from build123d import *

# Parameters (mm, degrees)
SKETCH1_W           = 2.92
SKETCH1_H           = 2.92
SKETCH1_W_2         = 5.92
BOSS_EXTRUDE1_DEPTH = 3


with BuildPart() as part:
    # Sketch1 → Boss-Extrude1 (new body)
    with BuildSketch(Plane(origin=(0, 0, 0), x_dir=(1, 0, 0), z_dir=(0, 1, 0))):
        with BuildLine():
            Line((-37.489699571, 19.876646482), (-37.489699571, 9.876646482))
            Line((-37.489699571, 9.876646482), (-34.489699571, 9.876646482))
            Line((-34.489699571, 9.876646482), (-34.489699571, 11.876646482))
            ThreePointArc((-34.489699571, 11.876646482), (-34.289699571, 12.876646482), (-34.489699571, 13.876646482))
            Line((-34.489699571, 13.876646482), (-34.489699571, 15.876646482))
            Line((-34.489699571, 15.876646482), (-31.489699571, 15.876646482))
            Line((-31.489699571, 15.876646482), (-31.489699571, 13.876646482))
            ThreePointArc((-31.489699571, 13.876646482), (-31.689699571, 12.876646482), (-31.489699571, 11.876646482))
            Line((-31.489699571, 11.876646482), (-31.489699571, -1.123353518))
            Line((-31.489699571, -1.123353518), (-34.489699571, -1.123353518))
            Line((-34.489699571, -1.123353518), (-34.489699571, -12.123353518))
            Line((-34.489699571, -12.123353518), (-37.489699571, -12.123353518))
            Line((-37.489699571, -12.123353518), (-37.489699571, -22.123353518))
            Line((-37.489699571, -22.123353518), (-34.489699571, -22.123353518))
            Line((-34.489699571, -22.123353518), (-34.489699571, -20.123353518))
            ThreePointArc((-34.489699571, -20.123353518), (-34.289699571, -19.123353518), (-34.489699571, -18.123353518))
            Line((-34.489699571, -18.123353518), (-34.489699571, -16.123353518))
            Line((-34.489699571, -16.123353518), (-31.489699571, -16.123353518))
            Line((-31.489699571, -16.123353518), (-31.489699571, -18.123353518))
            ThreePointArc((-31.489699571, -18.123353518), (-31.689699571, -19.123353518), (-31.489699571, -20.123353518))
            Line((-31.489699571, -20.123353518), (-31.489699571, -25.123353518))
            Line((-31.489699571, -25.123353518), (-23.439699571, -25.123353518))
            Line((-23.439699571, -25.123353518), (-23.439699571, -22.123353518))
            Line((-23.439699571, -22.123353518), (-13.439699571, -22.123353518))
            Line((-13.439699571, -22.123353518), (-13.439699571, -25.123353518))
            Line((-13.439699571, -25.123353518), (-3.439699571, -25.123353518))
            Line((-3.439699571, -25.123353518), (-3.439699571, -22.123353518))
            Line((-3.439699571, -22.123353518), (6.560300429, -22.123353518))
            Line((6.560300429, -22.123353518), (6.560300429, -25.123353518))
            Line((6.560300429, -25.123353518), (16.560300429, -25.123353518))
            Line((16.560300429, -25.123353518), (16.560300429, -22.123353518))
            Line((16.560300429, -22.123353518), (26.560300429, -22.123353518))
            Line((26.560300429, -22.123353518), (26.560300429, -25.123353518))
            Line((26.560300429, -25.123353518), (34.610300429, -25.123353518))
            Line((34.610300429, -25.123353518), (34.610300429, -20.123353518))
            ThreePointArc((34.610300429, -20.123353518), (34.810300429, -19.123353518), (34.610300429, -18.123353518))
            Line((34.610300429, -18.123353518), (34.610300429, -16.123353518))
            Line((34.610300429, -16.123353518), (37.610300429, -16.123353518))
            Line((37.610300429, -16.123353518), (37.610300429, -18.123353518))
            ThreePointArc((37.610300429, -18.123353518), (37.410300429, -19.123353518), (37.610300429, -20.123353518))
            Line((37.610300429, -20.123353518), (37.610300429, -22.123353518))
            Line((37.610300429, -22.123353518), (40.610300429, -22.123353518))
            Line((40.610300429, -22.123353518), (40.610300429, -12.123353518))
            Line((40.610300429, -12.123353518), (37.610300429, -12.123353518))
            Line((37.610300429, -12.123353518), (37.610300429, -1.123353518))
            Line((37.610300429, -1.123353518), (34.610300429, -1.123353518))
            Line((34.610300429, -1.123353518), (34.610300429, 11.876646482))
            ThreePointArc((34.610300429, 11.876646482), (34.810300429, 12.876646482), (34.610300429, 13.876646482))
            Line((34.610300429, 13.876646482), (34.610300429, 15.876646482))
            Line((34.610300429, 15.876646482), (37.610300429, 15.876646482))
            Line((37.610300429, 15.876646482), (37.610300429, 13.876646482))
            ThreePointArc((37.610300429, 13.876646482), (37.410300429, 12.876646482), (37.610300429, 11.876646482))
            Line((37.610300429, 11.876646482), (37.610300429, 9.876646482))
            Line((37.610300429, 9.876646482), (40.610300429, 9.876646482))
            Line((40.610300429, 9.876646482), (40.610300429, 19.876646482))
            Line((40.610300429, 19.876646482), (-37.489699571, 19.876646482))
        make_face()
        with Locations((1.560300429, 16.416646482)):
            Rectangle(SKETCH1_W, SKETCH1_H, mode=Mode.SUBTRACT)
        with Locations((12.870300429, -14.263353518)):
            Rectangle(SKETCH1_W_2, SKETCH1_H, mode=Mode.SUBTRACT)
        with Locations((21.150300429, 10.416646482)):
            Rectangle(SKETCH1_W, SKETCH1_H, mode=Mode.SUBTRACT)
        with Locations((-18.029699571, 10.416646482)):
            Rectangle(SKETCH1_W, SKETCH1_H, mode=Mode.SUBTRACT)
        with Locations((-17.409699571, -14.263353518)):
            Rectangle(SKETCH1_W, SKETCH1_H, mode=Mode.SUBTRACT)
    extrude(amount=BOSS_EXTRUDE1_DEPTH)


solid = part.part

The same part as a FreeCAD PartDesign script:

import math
import FreeCAD as App
import Part
import Sketcher

doc = App.newDocument("Part")
body = doc.addObject("PartDesign::Body", "Body")

sketch1 = doc.addObject("Sketcher::SketchObject", "Sketch")
body.addObject(sketch1)
sketch1.AttachmentSupport = (doc.XZ_Plane, [""])
sketch1.MapMode = "FlatFace"
sketch1.addGeometry([
    Part.LineSegment(App.Vector(-37.5, -19.9, 0), App.Vector(-37.5, -9.9, 0)),
    Part.LineSegment(App.Vector(-37.5, -9.9, 0), App.Vector(-34.5, -9.9, 0)),
    Part.LineSegment(App.Vector(-34.5, -9.9, 0), App.Vector(-34.5, -11.9, 0)),
    Part.ArcOfCircle(Part.Circle(App.Vector(-36.9, -12.9, 0), App.Vector(0, 0, 1), 2.6), math.radians(-23), math.radians(23)),
    Part.LineSegment(App.Vector(-34.5, -13.9, 0), App.Vector(-34.5, -15.9, 0)),
    Part.LineSegment(App.Vector(-34.5, -15.9, 0), App.Vector(-31.5, -15.9, 0)),
    Part.LineSegment(App.Vector(-31.5, -15.9, 0), App.Vector(-31.5, -13.9, 0)),
    Part.ArcOfCircle(Part.Circle(App.Vector(-29.1, -12.9, 0), App.Vector(0, 0, 1), 2.6), math.radians(157), math.radians(203)),
    Part.LineSegment(App.Vector(-31.5, -11.9, 0), App.Vector(-31.5, 1.1, 0)),
    Part.LineSegment(App.Vector(-31.5, 1.1, 0), App.Vector(-34.5, 1.1, 0)),
    Part.LineSegment(App.Vector(-34.5, 1.1, 0), App.Vector(-34.5, 12.1, 0)),
    Part.LineSegment(App.Vector(-34.5, 12.1, 0), App.Vector(-37.5, 12.1, 0)),
    Part.LineSegment(App.Vector(-37.5, 12.1, 0), App.Vector(-37.5, 22.1, 0)),
    Part.LineSegment(App.Vector(-37.5, 22.1, 0), App.Vector(-34.5, 22.1, 0)),
    Part.LineSegment(App.Vector(-34.5, 22.1, 0), App.Vector(-34.5, 20.1, 0)),
    Part.ArcOfCircle(Part.Circle(App.Vector(-36.9, 19.1, 0), App.Vector(0, 0, 1), 2.6), math.radians(-23), math.radians(23)),
    Part.LineSegment(App.Vector(-34.5, 18.1, 0), App.Vector(-34.5, 16.1, 0)),
    Part.LineSegment(App.Vector(-34.5, 16.1, 0), App.Vector(-31.5, 16.1, 0)),
    Part.LineSegment(App.Vector(-31.5, 16.1, 0), App.Vector(-31.5, 18.1, 0)),
    Part.ArcOfCircle(Part.Circle(App.Vector(-29.1, 19.1, 0), App.Vector(0, 0, 1), 2.6), math.radians(157), math.radians(203)),
    Part.LineSegment(App.Vector(-31.5, 20.1, 0), App.Vector(-31.5, 25.1, 0)),
    Part.LineSegment(App.Vector(-31.5, 25.1, 0), App.Vector(-23.4, 25.1, 0)),
    Part.LineSegment(App.Vector(-23.4, 25.1, 0), App.Vector(-23.4, 22.1, 0)),
    Part.LineSegment(App.Vector(-23.4, 22.1, 0), App.Vector(-13.4, 22.1, 0)),
    Part.LineSegment(App.Vector(-13.4, 22.1, 0), App.Vector(-13.4, 25.1, 0)),
    Part.LineSegment(App.Vector(-13.4, 25.1, 0), App.Vector(-3.4, 25.1, 0)),
    Part.LineSegment(App.Vector(-3.4, 25.1, 0), App.Vector(-3.4, 22.1, 0)),
    Part.LineSegment(App.Vector(-3.4, 22.1, 0), App.Vector(6.6, 22.1, 0)),
    Part.LineSegment(App.Vector(6.6, 22.1, 0), App.Vector(6.6, 25.1, 0)),
    Part.LineSegment(App.Vector(6.6, 25.1, 0), App.Vector(16.6, 25.1, 0)),
    Part.LineSegment(App.Vector(16.6, 25.1, 0), App.Vector(16.6, 22.1, 0)),
    Part.LineSegment(App.Vector(16.6, 22.1, 0), App.Vector(26.6, 22.1, 0)),
    Part.LineSegment(App.Vector(26.6, 22.1, 0), App.Vector(26.6, 25.1, 0)),
    Part.LineSegment(App.Vector(26.6, 25.1, 0), App.Vector(34.6, 25.1, 0)),
    Part.LineSegment(App.Vector(34.6, 25.1, 0), App.Vector(34.6, 20.1, 0)),
    Part.ArcOfCircle(Part.Circle(App.Vector(32.2, 19.1, 0), App.Vector(0, 0, 1), 2.6), math.radians(-23), math.radians(23)),
    Part.LineSegment(App.Vector(34.6, 18.1, 0), App.Vector(34.6, 16.1, 0)),
    Part.LineSegment(App.Vector(34.6, 16.1, 0), App.Vector(37.6, 16.1, 0)),
    Part.LineSegment(App.Vector(37.6, 16.1, 0), App.Vector(37.6, 18.1, 0)),
    Part.ArcOfCircle(Part.Circle(App.Vector(40, 19.1, 0), App.Vector(0, 0, 1), 2.6), math.radians(157), math.radians(203)),
    Part.LineSegment(App.Vector(37.6, 20.1, 0), App.Vector(37.6, 22.1, 0)),
    Part.LineSegment(App.Vector(37.6, 22.1, 0), App.Vector(40.6, 22.1, 0)),
    Part.LineSegment(App.Vector(40.6, 22.1, 0), App.Vector(40.6, 12.1, 0)),
    Part.LineSegment(App.Vector(40.6, 12.1, 0), App.Vector(37.6, 12.1, 0)),
    Part.LineSegment(App.Vector(37.6, 12.1, 0), App.Vector(37.6, 1.1, 0)),
    Part.LineSegment(App.Vector(37.6, 1.1, 0), App.Vector(34.6, 1.1, 0)),
    Part.LineSegment(App.Vector(34.6, 1.1, 0), App.Vector(34.6, -11.9, 0)),
    Part.ArcOfCircle(Part.Circle(App.Vector(32.2, -12.9, 0), App.Vector(0, 0, 1), 2.6), math.radians(-23), math.radians(23)),
    Part.LineSegment(App.Vector(34.6, -13.9, 0), App.Vector(34.6, -15.9, 0)),
    Part.LineSegment(App.Vector(34.6, -15.9, 0), App.Vector(37.6, -15.9, 0)),
    Part.LineSegment(App.Vector(37.6, -15.9, 0), App.Vector(37.6, -13.9, 0)),
    Part.ArcOfCircle(Part.Circle(App.Vector(40, -12.9, 0), App.Vector(0, 0, 1), 2.6), math.radians(157), math.radians(203)),
    Part.LineSegment(App.Vector(37.6, -11.9, 0), App.Vector(37.6, -9.9, 0)),
    Part.LineSegment(App.Vector(37.6, -9.9, 0), App.Vector(40.6, -9.9, 0)),
    Part.LineSegment(App.Vector(40.6, -9.9, 0), App.Vector(40.6, -19.9, 0)),
    Part.LineSegment(App.Vector(40.6, -19.9, 0), App.Vector(-37.5, -19.9, 0)),
    Part.LineSegment(App.Vector(-15.9, 15.7, 0), App.Vector(-18.9, 15.7, 0)),
    Part.LineSegment(App.Vector(-18.9, 15.7, 0), App.Vector(-18.9, 12.8, 0)),
    Part.LineSegment(App.Vector(-18.9, 12.8, 0), App.Vector(-15.9, 12.8, 0)),
    Part.LineSegment(App.Vector(-15.9, 12.8, 0), App.Vector(-15.9, 15.7, 0)),
    Part.LineSegment(App.Vector(15.8, 15.7, 0), App.Vector(9.9, 15.7, 0)),
    Part.LineSegment(App.Vector(9.9, 15.7, 0), App.Vector(9.9, 12.8, 0)),
    Part.LineSegment(App.Vector(9.9, 12.8, 0), App.Vector(15.8, 12.8, 0)),
    Part.LineSegment(App.Vector(15.8, 12.8, 0), App.Vector(15.8, 15.7, 0)),
    Part.LineSegment(App.Vector(-16.6, -9, 0), App.Vector(-19.5, -9, 0)),
    Part.LineSegment(App.Vector(-19.5, -9, 0), App.Vector(-19.5, -11.9, 0)),
    Part.LineSegment(App.Vector(-19.5, -11.9, 0), App.Vector(-16.6, -11.9, 0)),
    Part.LineSegment(App.Vector(-16.6, -11.9, 0), App.Vector(-16.6, -9, 0)),
    Part.LineSegment(App.Vector(3, -15, 0), App.Vector(0.1, -15, 0)),
    Part.LineSegment(App.Vector(0.1, -15, 0), App.Vector(0.1, -17.9, 0)),
    Part.LineSegment(App.Vector(0.1, -17.9, 0), App.Vector(3, -17.9, 0)),
    Part.LineSegment(App.Vector(3, -17.9, 0), App.Vector(3, -15, 0)),
    Part.LineSegment(App.Vector(22.6, -9, 0), App.Vector(19.7, -9, 0)),
    Part.LineSegment(App.Vector(19.7, -9, 0), App.Vector(19.7, -11.9, 0)),
    Part.LineSegment(App.Vector(19.7, -11.9, 0), App.Vector(22.6, -11.9, 0)),
    Part.LineSegment(App.Vector(22.6, -11.9, 0), App.Vector(22.6, -9, 0)),
], False)
sketch1.addConstraint([
    Sketcher.Constraint("Coincident", 0, 2, 1, 1),
    Sketcher.Constraint("Coincident", 1, 2, 2, 1),
    Sketcher.Constraint("Coincident", 2, 2, 3, 2),
    Sketcher.Constraint("Coincident", 3, 1, 4, 1),
    Sketcher.Constraint("Coincident", 4, 2, 5, 1),
    Sketcher.Constraint("Coincident", 5, 2, 6, 1),
    Sketcher.Constraint("Coincident", 6, 2, 7, 2),
    Sketcher.Constraint("Coincident", 7, 1, 8, 1),
    Sketcher.Constraint("Coincident", 8, 2, 9, 1),
    Sketcher.Constraint("Coincident", 9, 2, 10, 1),
    Sketcher.Constraint("Coincident", 10, 2, 11, 1),
    Sketcher.Constraint("Coincident", 11, 2, 12, 1),
    Sketcher.Constraint("Coincident", 12, 2, 13, 1),
    Sketcher.Constraint("Coincident", 13, 2, 14, 1),
    Sketcher.Constraint("Coincident", 14, 2, 15, 2),
    Sketcher.Constraint("Coincident", 15, 1, 16, 1),
    Sketcher.Constraint("Coincident", 16, 2, 17, 1),
    Sketcher.Constraint("Coincident", 17, 2, 18, 1),
    Sketcher.Constraint("Coincident", 18, 2, 19, 2),
    Sketcher.Constraint("Coincident", 19, 1, 20, 1),
    Sketcher.Constraint("Coincident", 20, 2, 21, 1),
    Sketcher.Constraint("Coincident", 21, 2, 22, 1),
    Sketcher.Constraint("Coincident", 22, 2, 23, 1),
    Sketcher.Constraint("Coincident", 23, 2, 24, 1),
    Sketcher.Constraint("Coincident", 24, 2, 25, 1),
    Sketcher.Constraint("Coincident", 25, 2, 26, 1),
    Sketcher.Constraint("Coincident", 26, 2, 27, 1),
    Sketcher.Constraint("Coincident", 27, 2, 28, 1),
    Sketcher.Constraint("Coincident", 28, 2, 29, 1),
    Sketcher.Constraint("Coincident", 29, 2, 30, 1),
    Sketcher.Constraint("Coincident", 30, 2, 31, 1),
    Sketcher.Constraint("Coincident", 31, 2, 32, 1),
    Sketcher.Constraint("Coincident", 32, 2, 33, 1),
    Sketcher.Constraint("Coincident", 33, 2, 34, 1),
    Sketcher.Constraint("Coincident", 34, 2, 35, 2),
    Sketcher.Constraint("Coincident", 35, 1, 36, 1),
    Sketcher.Constraint("Coincident", 36, 2, 37, 1),
    Sketcher.Constraint("Coincident", 37, 2, 38, 1),
    Sketcher.Constraint("Coincident", 38, 2, 39, 2),
    Sketcher.Constraint("Coincident", 39, 1, 40, 1),
    Sketcher.Constraint("Coincident", 40, 2, 41, 1),
    Sketcher.Constraint("Coincident", 41, 2, 42, 1),
    Sketcher.Constraint("Coincident", 42, 2, 43, 1),
    Sketcher.Constraint("Coincident", 43, 2, 44, 1),
    Sketcher.Constraint("Coincident", 44, 2, 45, 1),
    Sketcher.Constraint("Coincident", 45, 2, 46, 1),
    Sketcher.Constraint("Coincident", 46, 2, 47, 2),
    Sketcher.Constraint("Coincident", 47, 1, 48, 1),
    Sketcher.Constraint("Coincident", 48, 2, 49, 1),
    Sketcher.Constraint("Coincident", 49, 2, 50, 1),
    Sketcher.Constraint("Coincident", 50, 2, 51, 2),
    Sketcher.Constraint("Coincident", 51, 1, 52, 1),
    Sketcher.Constraint("Coincident", 52, 2, 53, 1),
    Sketcher.Constraint("Coincident", 53, 2, 54, 1),
    Sketcher.Constraint("Coincident", 54, 2, 55, 1),
    Sketcher.Constraint("Coincident", 55, 2, 0, 1),
    Sketcher.Constraint("Coincident", 56, 2, 57, 1),
    Sketcher.Constraint("Coincident", 57, 2, 58, 1),
    Sketcher.Constraint("Coincident", 58, 2, 59, 1),
    Sketcher.Constraint("Coincident", 59, 2, 56, 1),
    Sketcher.Constraint("Coincident", 60, 2, 61, 1),
    Sketcher.Constraint("Coincident", 61, 2, 62, 1),
    Sketcher.Constraint("Coincident", 62, 2, 63, 1),
    Sketcher.Constraint("Coincident", 63, 2, 60, 1),
    Sketcher.Constraint("Coincident", 64, 2, 65, 1),
    Sketcher.Constraint("Coincident", 65, 2, 66, 1),
    Sketcher.Constraint("Coincident", 66, 2, 67, 1),
    Sketcher.Constraint("Coincident", 67, 2, 64, 1),
    Sketcher.Constraint("Coincident", 68, 2, 69, 1),
    Sketcher.Constraint("Coincident", 69, 2, 70, 1),
    Sketcher.Constraint("Coincident", 70, 2, 71, 1),
    Sketcher.Constraint("Coincident", 71, 2, 68, 1),
    Sketcher.Constraint("Coincident", 72, 2, 73, 1),
    Sketcher.Constraint("Coincident", 73, 2, 74, 1),
    Sketcher.Constraint("Coincident", 74, 2, 75, 1),
    Sketcher.Constraint("Coincident", 75, 2, 72, 1),
    Sketcher.Constraint("Vertical", 0),
    Sketcher.Constraint("Horizontal", 1),
    Sketcher.Constraint("Vertical", 2),
    Sketcher.Constraint("Vertical", 4),
    Sketcher.Constraint("Horizontal", 5),
    Sketcher.Constraint("Vertical", 6),
    Sketcher.Constraint("Vertical", 8),
    Sketcher.Constraint("Horizontal", 9),
    Sketcher.Constraint("Vertical", 10),
    Sketcher.Constraint("Horizontal", 11),
    Sketcher.Constraint("Vertical", 12),
    Sketcher.Constraint("Horizontal", 13),
    Sketcher.Constraint("Vertical", 14),
    Sketcher.Constraint("Vertical", 16),
    Sketcher.Constraint("Horizontal", 17),
    Sketcher.Constraint("Vertical", 18),
    Sketcher.Constraint("Vertical", 20),
    Sketcher.Constraint("Horizontal", 21),
    Sketcher.Constraint("Vertical", 22),
    Sketcher.Constraint("Horizontal", 23),
    Sketcher.Constraint("Vertical", 24),
    Sketcher.Constraint("Horizontal", 25),
    Sketcher.Constraint("Vertical", 26),
    Sketcher.Constraint("Horizontal", 27),
    Sketcher.Constraint("Vertical", 28),
    Sketcher.Constraint("Horizontal", 29),
    Sketcher.Constraint("Vertical", 30),
    Sketcher.Constraint("Horizontal", 31),
    Sketcher.Constraint("Vertical", 32),
    Sketcher.Constraint("Horizontal", 33),
    Sketcher.Constraint("Vertical", 34),
    Sketcher.Constraint("Vertical", 36),
    Sketcher.Constraint("Horizontal", 37),
    Sketcher.Constraint("Vertical", 38),
    Sketcher.Constraint("Vertical", 40),
    Sketcher.Constraint("Horizontal", 41),
    Sketcher.Constraint("Vertical", 42),
    Sketcher.Constraint("Horizontal", 43),
    Sketcher.Constraint("Vertical", 44),
    Sketcher.Constraint("Horizontal", 45),
    Sketcher.Constraint("Vertical", 46),
    Sketcher.Constraint("Vertical", 48),
    Sketcher.Constraint("Horizontal", 49),
    Sketcher.Constraint("Vertical", 50),
    Sketcher.Constraint("Vertical", 52),
    Sketcher.Constraint("Horizontal", 53),
    Sketcher.Constraint("Vertical", 54),
    Sketcher.Constraint("Horizontal", 55),
    Sketcher.Constraint("Horizontal", 56),
    Sketcher.Constraint("Vertical", 57),
    Sketcher.Constraint("Horizontal", 58),
    Sketcher.Constraint("Vertical", 59),
    Sketcher.Constraint("Horizontal", 60),
    Sketcher.Constraint("Vertical", 61),
    Sketcher.Constraint("Horizontal", 62),
    Sketcher.Constraint("Vertical", 63),
    Sketcher.Constraint("Horizontal", 64),
    Sketcher.Constraint("Vertical", 65),
    Sketcher.Constraint("Horizontal", 66),
    Sketcher.Constraint("Vertical", 67),
    Sketcher.Constraint("Horizontal", 68),
    Sketcher.Constraint("Vertical", 69),
    Sketcher.Constraint("Horizontal", 70),
    Sketcher.Constraint("Vertical", 71),
    Sketcher.Constraint("Horizontal", 72),
    Sketcher.Constraint("Vertical", 73),
    Sketcher.Constraint("Horizontal", 74),
    Sketcher.Constraint("Vertical", 75),
    Sketcher.Constraint("Equal", 3, 7),
    Sketcher.Constraint("Equal", 7, 15),
    Sketcher.Constraint("Equal", 15, 19),
    Sketcher.Constraint("Equal", 19, 35),
    Sketcher.Constraint("Equal", 35, 39),
    Sketcher.Constraint("Equal", 39, 47),
    Sketcher.Constraint("Equal", 47, 51),
    Sketcher.Constraint("Horizontal", 3, 3, 7, 3),
    Sketcher.Constraint("Horizontal", 15, 3, 19, 3),
    Sketcher.Constraint("Horizontal", 19, 3, 35, 3),
    Sketcher.Constraint("Horizontal", 35, 3, 39, 3),
    Sketcher.Constraint("Horizontal", 7, 3, 47, 3),
    Sketcher.Constraint("Horizontal", 47, 3, 51, 3),
    Sketcher.Constraint("Horizontal", 3, 1, 6, 2),
    Sketcher.Constraint("Horizontal", 2, 2, 7, 1),
    Sketcher.Constraint("Horizontal", 15, 1, 18, 2),
    Sketcher.Constraint("Horizontal", 14, 2, 19, 1),
    Sketcher.Constraint("Horizontal", 13, 2, 22, 2),
    Sketcher.Constraint("Horizontal", 21, 2, 24, 2),
    Sketcher.Constraint("Horizontal", 23, 2, 26, 2),
    Sketcher.Constraint("Horizontal", 25, 2, 28, 2),
    Sketcher.Constraint("Horizontal", 27, 2, 30, 2),
    Sketcher.Constraint("Horizontal", 29, 2, 32, 2),
    Sketcher.Constraint("Horizontal", 19, 1, 34, 2),
    Sketcher.Constraint("Horizontal", 18, 2, 35, 1),
    Sketcher.Constraint("Horizontal", 17, 2, 36, 2),
    Sketcher.Constraint("Horizontal", 35, 1, 38, 2),
    Sketcher.Constraint("Horizontal", 34, 2, 39, 1),
    Sketcher.Constraint("Horizontal", 31, 2, 40, 2),
    Sketcher.Constraint("Horizontal", 11, 2, 42, 2),
    Sketcher.Constraint("Horizontal", 9, 2, 44, 2),
    Sketcher.Constraint("Horizontal", 7, 1, 46, 2),
    Sketcher.Constraint("Horizontal", 6, 2, 47, 1),
    Sketcher.Constraint("Horizontal", 5, 2, 48, 2),
    Sketcher.Constraint("Horizontal", 47, 1, 50, 2),
    Sketcher.Constraint("Horizontal", 46, 2, 51, 1),
    Sketcher.Constraint("Horizontal", 1, 2, 52, 2),
    Sketcher.Constraint("Horizontal", 59, 2, 60, 2),
    Sketcher.Constraint("Horizontal", 58, 2, 61, 2),
    Sketcher.Constraint("Horizontal", 51, 1, 65, 2),
    Sketcher.Constraint("Horizontal", 67, 2, 72, 2),
    Sketcher.Constraint("Horizontal", 66, 2, 73, 2),
    Sketcher.Constraint("Vertical", 3, 3, 15, 3),
    Sketcher.Constraint("Vertical", 7, 3, 19, 3),
    Sketcher.Constraint("Vertical", 35, 3, 47, 3),
    Sketcher.Constraint("Vertical", 39, 3, 51, 3),
    Sketcher.Constraint("Vertical", 2, 2, 3, 1),
    Sketcher.Constraint("Vertical", 4, 2, 9, 2),
    Sketcher.Constraint("Vertical", 0, 2, 11, 2),
    Sketcher.Constraint("Vertical", 10, 2, 13, 2),
    Sketcher.Constraint("Vertical", 14, 2, 15, 1),
    Sketcher.Constraint("Vertical", 40, 2, 43, 2),
    Sketcher.Constraint("Vertical", 42, 2, 53, 2),
    Sketcher.Constraint("Equal", 1, 5),
    Sketcher.Constraint("Equal", 23, 25),
    Sketcher.Constraint("Equal", 25, 27),
    Sketcher.Constraint("Equal", 27, 29),
    Sketcher.Constraint("Equal", 29, 31),
    Sketcher.Constraint("Equal", 21, 33),
    Sketcher.Constraint("Equal", 17, 37),
    Sketcher.Constraint("Equal", 37, 41),
    Sketcher.Constraint("Equal", 58, 64),
    Sketcher.Constraint("Equal", 66, 68),
    Sketcher.Constraint("Equal", 70, 72),
    Sketcher.Constraint("Equal", 31, 0),
    Sketcher.Constraint("Equal", 2, 4),
    Sketcher.Constraint("Equal", 0, 12),
    Sketcher.Constraint("Equal", 6, 14),
    Sketcher.Constraint("Equal", 14, 16),
    Sketcher.Constraint("Equal", 53, 22),
    Sketcher.Constraint("Equal", 74, 57),
    Sketcher.Constraint("Equal", 63, 65),
    Sketcher.Constraint("Equal", 67, 69),
    Sketcher.Constraint("Radius", 3, 2.6),
    Sketcher.Constraint("DistanceX", 1, 1, 1, 2, 3.0),
    Sketcher.Constraint("DistanceX", 23, 1, 23, 2, 10.0),
    Sketcher.Constraint("DistanceY", 2, 2, 2, 1, 2.0),
    Sketcher.Constraint("DistanceY", 8, 1, 8, 2, 13.0),
    Sketcher.Constraint("DistanceY", 10, 1, 10, 2, 11.0),
    Sketcher.Constraint("DistanceX", 55, 2, 55, 1, 78.1),
    Sketcher.Constraint("DistanceX", 56, 2, 56, 1, 2.92),
    Sketcher.Constraint("DistanceX", 60, 2, 60, 1, 5.92),
    Sketcher.Constraint("DistanceX", 3, 3, -1, 1, 36.8897),
    Sketcher.Constraint("DistanceX", 7, 3, -1, 1, 29.0897),
    Sketcher.Constraint("DistanceX", 56, 2, -1, 1, 18.8697),
    Sketcher.Constraint("DistanceX", -1, 1, 60, 2, 9.9103),
    Sketcher.Constraint("DistanceX", 64, 2, -1, 1, 19.4897),
    Sketcher.Constraint("DistanceX", -1, 1, 68, 2, 0.1003),
    Sketcher.Constraint("DistanceX", -1, 1, 72, 2, 19.6903),
    Sketcher.Constraint("DistanceY", 3, 3, -1, 1, 12.876646),
    Sketcher.Constraint("DistanceY", -1, 1, 56, 2, 15.723354),
    Sketcher.Constraint("DistanceY", 68, 2, -1, 1, 14.956646),
])
pad1 = doc.addObject("PartDesign::Pad", "Pad")
body.addObject(pad1)
pad1.Profile = sketch1
pad1.Length = 3
pad1.Reversed = True

doc.recompute()
